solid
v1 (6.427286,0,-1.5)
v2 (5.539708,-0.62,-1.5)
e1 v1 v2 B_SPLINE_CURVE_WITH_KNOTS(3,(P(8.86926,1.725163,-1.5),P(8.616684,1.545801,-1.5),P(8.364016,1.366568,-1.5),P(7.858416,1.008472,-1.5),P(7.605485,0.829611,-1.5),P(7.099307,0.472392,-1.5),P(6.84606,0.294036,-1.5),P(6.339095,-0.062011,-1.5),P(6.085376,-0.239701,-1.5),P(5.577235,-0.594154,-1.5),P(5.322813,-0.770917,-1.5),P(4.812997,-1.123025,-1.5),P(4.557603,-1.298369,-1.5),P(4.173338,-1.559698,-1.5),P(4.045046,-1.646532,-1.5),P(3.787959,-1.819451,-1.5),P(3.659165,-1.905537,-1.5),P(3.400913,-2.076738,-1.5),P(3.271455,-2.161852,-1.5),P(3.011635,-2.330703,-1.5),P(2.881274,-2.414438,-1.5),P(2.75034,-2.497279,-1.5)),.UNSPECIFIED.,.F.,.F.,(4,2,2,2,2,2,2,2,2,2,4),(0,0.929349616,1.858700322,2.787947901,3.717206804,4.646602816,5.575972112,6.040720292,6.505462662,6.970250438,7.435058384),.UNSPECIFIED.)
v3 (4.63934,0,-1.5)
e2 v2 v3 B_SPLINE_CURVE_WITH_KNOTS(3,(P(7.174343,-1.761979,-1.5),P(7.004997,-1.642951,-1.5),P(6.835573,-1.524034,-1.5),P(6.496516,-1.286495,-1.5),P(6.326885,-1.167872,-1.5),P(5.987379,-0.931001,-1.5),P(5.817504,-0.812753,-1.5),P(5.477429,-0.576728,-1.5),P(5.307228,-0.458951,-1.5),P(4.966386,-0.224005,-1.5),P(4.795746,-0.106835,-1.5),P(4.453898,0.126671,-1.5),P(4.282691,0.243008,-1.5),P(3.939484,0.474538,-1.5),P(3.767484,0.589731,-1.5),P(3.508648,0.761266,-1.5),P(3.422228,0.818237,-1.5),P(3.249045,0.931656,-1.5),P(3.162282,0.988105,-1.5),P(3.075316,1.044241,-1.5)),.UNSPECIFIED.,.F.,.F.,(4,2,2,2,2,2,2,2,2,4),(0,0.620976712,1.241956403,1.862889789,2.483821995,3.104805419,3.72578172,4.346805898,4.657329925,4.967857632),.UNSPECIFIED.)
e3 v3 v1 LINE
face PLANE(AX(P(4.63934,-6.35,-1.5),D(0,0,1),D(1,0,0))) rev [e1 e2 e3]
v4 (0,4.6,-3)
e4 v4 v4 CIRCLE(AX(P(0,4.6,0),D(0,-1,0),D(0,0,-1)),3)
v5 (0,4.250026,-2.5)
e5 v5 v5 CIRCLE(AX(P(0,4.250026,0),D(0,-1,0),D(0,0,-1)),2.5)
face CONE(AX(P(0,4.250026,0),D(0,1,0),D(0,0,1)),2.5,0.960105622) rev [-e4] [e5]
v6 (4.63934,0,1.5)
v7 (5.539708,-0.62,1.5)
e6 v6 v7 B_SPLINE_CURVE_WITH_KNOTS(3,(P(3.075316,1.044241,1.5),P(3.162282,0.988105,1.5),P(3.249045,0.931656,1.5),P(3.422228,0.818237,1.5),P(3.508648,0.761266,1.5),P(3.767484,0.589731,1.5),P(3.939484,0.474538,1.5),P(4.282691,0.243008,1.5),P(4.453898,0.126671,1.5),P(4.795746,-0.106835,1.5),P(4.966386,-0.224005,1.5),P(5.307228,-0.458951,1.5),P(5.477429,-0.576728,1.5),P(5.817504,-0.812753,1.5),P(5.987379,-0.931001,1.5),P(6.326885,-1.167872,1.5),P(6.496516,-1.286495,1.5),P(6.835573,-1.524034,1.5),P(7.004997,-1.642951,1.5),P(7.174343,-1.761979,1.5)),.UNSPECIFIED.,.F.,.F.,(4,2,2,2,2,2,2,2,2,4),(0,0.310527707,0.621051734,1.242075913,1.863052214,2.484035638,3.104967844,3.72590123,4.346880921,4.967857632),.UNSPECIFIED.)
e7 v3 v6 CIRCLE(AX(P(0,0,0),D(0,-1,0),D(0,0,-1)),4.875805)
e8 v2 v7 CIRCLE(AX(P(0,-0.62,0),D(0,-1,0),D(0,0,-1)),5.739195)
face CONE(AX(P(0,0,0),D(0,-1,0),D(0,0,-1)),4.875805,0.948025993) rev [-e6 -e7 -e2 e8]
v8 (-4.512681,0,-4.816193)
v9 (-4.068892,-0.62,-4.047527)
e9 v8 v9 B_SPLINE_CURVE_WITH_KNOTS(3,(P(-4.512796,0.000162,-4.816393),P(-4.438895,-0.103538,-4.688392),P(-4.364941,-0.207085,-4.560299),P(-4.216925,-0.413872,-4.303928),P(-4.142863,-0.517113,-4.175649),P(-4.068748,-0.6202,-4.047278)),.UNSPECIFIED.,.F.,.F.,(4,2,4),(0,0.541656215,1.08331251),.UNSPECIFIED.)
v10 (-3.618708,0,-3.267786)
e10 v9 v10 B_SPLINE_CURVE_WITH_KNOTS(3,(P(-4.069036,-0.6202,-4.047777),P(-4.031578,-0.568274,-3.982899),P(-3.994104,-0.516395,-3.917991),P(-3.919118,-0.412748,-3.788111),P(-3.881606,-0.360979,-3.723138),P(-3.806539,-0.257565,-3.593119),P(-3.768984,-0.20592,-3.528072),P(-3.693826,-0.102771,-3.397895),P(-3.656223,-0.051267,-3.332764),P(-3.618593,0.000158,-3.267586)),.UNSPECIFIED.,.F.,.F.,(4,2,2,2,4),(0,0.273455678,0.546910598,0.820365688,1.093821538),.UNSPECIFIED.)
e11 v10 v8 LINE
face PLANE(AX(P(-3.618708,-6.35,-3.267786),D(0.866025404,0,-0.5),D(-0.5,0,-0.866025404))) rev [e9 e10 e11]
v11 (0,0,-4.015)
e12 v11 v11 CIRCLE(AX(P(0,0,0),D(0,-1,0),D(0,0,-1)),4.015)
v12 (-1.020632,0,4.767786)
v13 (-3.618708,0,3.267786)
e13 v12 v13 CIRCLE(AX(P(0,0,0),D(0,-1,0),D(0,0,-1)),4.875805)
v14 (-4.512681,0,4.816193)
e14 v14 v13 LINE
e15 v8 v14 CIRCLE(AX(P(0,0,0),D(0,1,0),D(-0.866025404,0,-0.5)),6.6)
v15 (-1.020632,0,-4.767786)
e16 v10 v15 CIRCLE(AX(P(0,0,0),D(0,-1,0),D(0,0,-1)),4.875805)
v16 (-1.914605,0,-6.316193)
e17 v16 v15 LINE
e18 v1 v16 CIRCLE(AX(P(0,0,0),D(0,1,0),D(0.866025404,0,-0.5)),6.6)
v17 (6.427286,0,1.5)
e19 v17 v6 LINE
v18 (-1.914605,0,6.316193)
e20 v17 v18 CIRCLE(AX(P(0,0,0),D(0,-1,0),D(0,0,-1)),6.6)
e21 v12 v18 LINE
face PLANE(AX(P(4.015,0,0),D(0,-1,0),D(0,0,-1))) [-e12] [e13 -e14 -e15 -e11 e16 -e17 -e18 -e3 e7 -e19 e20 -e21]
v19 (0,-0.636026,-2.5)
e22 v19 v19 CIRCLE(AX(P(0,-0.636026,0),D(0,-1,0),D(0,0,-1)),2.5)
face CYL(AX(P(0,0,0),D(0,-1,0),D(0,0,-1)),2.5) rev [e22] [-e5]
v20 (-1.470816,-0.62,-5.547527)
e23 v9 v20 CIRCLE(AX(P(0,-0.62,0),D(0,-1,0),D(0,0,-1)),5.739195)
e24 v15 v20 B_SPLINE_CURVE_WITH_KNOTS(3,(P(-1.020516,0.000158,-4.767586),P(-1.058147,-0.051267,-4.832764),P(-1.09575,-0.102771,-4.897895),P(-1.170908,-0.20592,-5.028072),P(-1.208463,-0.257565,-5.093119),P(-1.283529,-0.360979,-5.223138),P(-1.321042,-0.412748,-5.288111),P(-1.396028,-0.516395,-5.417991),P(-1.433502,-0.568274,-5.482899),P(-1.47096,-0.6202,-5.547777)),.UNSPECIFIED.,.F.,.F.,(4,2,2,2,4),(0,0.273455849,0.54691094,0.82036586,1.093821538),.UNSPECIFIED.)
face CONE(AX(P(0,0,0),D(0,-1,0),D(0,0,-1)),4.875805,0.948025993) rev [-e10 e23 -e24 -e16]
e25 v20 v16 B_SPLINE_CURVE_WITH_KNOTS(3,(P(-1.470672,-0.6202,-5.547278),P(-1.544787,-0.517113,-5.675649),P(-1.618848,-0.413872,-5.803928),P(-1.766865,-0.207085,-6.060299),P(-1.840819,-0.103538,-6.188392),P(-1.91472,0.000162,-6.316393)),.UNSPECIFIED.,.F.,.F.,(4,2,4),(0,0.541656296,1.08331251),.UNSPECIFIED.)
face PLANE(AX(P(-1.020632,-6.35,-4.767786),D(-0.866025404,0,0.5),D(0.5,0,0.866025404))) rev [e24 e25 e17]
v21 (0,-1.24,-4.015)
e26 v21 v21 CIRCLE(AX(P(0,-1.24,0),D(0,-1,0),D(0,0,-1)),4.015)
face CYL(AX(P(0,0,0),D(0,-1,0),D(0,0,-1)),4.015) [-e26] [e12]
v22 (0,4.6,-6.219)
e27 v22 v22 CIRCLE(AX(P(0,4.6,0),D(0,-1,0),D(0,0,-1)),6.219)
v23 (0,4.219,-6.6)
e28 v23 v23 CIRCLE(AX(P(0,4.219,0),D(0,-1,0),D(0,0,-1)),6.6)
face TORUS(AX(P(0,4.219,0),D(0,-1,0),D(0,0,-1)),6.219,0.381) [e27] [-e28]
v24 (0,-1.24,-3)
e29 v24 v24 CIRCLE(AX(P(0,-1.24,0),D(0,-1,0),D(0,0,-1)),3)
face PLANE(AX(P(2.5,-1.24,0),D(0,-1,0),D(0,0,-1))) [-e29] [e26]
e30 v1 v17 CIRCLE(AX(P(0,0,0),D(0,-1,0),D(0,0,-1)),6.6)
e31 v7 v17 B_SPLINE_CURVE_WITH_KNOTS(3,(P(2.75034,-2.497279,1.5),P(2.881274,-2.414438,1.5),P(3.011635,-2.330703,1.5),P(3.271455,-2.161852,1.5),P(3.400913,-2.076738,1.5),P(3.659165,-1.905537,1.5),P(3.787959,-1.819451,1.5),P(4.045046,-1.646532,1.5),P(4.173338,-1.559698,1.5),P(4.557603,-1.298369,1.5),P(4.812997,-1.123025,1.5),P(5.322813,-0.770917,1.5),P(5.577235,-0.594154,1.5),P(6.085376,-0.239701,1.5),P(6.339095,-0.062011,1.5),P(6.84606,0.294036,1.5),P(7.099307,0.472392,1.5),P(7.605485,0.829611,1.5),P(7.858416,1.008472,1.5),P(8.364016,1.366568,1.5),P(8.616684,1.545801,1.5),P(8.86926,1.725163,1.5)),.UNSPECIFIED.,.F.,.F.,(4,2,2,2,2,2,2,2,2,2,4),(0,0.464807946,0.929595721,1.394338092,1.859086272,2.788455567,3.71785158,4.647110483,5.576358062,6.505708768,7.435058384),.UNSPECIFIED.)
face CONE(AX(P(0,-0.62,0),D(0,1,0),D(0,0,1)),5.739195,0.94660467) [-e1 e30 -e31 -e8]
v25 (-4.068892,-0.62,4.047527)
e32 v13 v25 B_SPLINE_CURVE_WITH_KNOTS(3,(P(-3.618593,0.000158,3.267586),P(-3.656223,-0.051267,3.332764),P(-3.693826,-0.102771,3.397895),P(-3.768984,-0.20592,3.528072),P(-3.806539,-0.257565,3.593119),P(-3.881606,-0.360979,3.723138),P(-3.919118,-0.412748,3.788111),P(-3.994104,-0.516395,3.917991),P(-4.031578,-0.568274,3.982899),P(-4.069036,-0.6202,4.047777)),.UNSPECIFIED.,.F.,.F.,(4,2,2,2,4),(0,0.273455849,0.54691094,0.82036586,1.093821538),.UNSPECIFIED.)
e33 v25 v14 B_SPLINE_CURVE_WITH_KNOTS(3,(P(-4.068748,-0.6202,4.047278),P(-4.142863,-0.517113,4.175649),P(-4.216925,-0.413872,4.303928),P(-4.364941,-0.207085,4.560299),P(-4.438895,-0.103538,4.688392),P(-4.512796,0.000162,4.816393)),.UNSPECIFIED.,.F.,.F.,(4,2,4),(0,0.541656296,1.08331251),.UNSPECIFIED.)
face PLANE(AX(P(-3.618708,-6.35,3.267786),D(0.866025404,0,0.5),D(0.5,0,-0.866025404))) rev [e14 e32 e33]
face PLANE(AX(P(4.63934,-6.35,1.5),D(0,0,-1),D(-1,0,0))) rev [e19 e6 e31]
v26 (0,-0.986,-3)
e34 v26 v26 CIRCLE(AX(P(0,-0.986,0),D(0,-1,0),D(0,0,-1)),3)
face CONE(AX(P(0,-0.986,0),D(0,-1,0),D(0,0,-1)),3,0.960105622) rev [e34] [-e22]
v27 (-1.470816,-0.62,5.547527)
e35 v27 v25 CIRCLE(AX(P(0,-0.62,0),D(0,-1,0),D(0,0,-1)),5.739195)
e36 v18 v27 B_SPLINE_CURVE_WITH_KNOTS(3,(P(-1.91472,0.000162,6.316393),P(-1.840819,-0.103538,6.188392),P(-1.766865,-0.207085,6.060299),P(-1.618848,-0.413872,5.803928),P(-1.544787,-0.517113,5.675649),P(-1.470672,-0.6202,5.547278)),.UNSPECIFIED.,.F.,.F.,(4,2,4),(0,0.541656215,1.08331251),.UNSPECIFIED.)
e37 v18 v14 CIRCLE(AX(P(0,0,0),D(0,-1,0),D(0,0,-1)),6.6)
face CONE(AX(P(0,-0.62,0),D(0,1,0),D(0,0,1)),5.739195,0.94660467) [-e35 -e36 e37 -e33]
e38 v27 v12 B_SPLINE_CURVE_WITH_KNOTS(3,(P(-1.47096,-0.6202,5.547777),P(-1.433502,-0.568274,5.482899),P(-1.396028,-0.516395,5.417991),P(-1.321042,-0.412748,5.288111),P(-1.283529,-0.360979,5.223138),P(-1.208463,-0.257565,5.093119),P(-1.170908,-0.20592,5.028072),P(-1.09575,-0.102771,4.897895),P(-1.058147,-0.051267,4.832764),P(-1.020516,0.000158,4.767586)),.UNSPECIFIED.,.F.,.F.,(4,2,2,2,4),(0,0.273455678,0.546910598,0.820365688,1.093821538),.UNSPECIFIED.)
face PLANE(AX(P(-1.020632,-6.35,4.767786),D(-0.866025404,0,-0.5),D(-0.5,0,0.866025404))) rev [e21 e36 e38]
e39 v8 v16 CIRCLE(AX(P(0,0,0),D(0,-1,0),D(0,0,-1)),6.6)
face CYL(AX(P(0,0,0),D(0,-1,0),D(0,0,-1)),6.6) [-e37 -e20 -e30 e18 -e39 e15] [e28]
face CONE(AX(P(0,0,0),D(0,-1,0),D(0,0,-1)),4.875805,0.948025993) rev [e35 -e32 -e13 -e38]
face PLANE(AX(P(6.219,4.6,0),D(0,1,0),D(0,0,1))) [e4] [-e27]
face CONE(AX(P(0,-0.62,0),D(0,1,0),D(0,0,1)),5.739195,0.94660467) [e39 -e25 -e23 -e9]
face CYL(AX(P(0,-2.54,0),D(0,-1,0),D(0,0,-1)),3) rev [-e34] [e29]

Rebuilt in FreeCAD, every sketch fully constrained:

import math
import FreeCAD as App
import Part
import Sketcher

V = App.Vector
Q = App.Units.Quantity

doc = App.newDocument("Part")
body = doc.addObject("PartDesign::Body", "Body")

# Sketch on XY plane
sketch1 = body.newObject("Sketcher::SketchObject", "Sketch")
sketch1.AttachmentSupport = (doc.getObject("XY_Plane"), [""])
sketch1.MapMode = "FlatFace"
sketch1.addGeometry([
    Part.LineSegment(V(4.01, 0, 0), V(4.88, 0, 0)),  # 0
    Part.LineSegment(V(4.88, 0, 0), V(5.74, -0.62, 0)),  # 1
    Part.LineSegment(V(5.74, -0.62, 0), V(6.6, 0, 0)),  # 2
    Part.LineSegment(V(6.6, 0, 0), V(6.6, 4.22, 0)),  # 3
    Part.ArcOfCircle(Part.Circle(V(6.22, 4.22, 0), V(0, 0, 1), 0.38), math.radians(0), math.radians(90)),  # 4
    Part.LineSegment(V(6.22, 4.6, 0), V(2.5, 4.6, 0)),  # 5
    Part.LineSegment(V(2.5, 4.6, 0), V(2.5, -1.24, 0)),  # 6
    Part.LineSegment(V(2.5, -1.24, 0), V(4.01, -1.24, 0)),  # 7
    Part.LineSegment(V(4.01, -1.24, 0), V(4.01, 0, 0)),  # 8
], False)
sketch1.addConstraint([
    Sketcher.Constraint("Coincident", 0, 2, 1, 1),
    Sketcher.Constraint("Coincident", 1, 2, 2, 1),
    Sketcher.Constraint("Coincident", 2, 2, 3, 1),
    Sketcher.Constraint("Tangent", 3, 2, 4, 1),
    Sketcher.Constraint("Tangent", 4, 2, 5, 1),
    Sketcher.Constraint("Coincident", 5, 2, 6, 1),
    Sketcher.Constraint("Coincident", 6, 2, 7, 1),
    Sketcher.Constraint("Coincident", 7, 2, 8, 1),
    Sketcher.Constraint("Coincident", 8, 2, 0, 1),
    Sketcher.Constraint("Horizontal", 0),
    Sketcher.Constraint("Vertical", 3),
    Sketcher.Constraint("Horizontal", 5),
    Sketcher.Constraint("Vertical", 6),
    Sketcher.Constraint("Horizontal", 7),
    Sketcher.Constraint("Vertical", 8),
    Sketcher.Constraint("PointOnObject", 0, 2, -1),
    Sketcher.Constraint("PointOnObject", 2, 2, -1),
    Sketcher.Constraint("Radius", 4, Q("0.015 in")),
    Sketcher.Constraint("DistanceX", 5, 2, 5, 1, 3.719),
    Sketcher.Constraint("DistanceX", 7, 1, 7, 2, 1.515),
    Sketcher.Constraint("DistanceY", 3, 1, 3, 2, 4.219),
    Sketcher.Constraint("DistanceY", 6, 2, 6, 1, 5.84),
    Sketcher.Constraint("DistanceX", -1, 1, 4, 3, 6.219),
    Sketcher.Constraint("DistanceY", 1, 2, -1, 1, 0.62),
    Sketcher.Constraint("Distance", 1, 1.06294),
    Sketcher.Constraint("Distance", 2, 1.060842),
])
revolution = body.newObject("PartDesign::Revolution", "Revolution")
revolution.Profile = sketch1
revolution.ReferenceAxis = (sketch1, ["V_Axis"])
revolution.Angle = 360

# Sketch on XY plane
sketch2 = body.newObject("Sketcher::SketchObject", "Sketch001")
sketch2.AttachmentSupport = (doc.getObject("XY_Plane"), [""])
sketch2.MapMode = "FlatFace"
sketch2.addGeometry([
    Part.LineSegment(V(3, -1.49, 0), V(3, -0.99, 0)),  # 0
    Part.LineSegment(V(3, -0.99, 0), V(2.5, -0.64, 0)),  # 1
    Part.LineSegment(V(2.5, -0.64, 0), V(2.5, -1.49, 0)),  # 2
    Part.LineSegment(V(2.5, -1.49, 0), V(3, -1.49, 0)),  # 3
    Part.LineSegment(V(2.5, 4.25, 0), V(3, 4.6, 0)),  # 4
    Part.LineSegment(V(3, 4.6, 0), V(2.5, 4.6, 0)),  # 5
    Part.LineSegment(V(2.5, 4.6, 0), V(2.5, 4.25, 0)),  # 6
], False)
sketch2.addConstraint([
    Sketcher.Constraint("Coincident", 0, 2, 1, 1),
    Sketcher.Constraint("Coincident", 1, 2, 2, 1),
    Sketcher.Constraint("Coincident", 2, 2, 3, 1),
    Sketcher.Constraint("Coincident", 3, 2, 0, 1),
    Sketcher.Constraint("Coincident", 4, 2, 5, 1),
    Sketcher.Constraint("Coincident", 5, 2, 6, 1),
    Sketcher.Constraint("Coincident", 6, 2, 4, 1),
    Sketcher.Constraint("Vertical", 0),
    Sketcher.Constraint("Vertical", 2),
    Sketcher.Constraint("Horizontal", 3),
    Sketcher.Constraint("Horizontal", 5),
    Sketcher.Constraint("Vertical", 6),
    Sketcher.Constraint("Vertical", 3, 2, 4, 2),
    Sketcher.Constraint("Vertical", 2, 2, 5, 2),
    Sketcher.Constraint("Equal", 1, 4),
    Sketcher.Constraint("DistanceY", 0, 1, 0, 2, Q("0.02 in")),
    Sketcher.Constraint("Angle", 1, Q("145.01 deg")),
    Sketcher.Constraint("DistanceX", 3, 1, 3, 2, 0.5),
    Sketcher.Constraint("DistanceX", -1, 1, 0, 2, 3.0),
    Sketcher.Constraint("DistanceY", 0, 2, -1, 1, 0.986),
    Sketcher.Constraint("DistanceY", -1, 1, 4, 2, 4.6),
])
groove = body.newObject("PartDesign::Groove", "Groove")
groove.Profile = sketch2
groove.ReferenceAxis = (sketch2, ["V_Axis"])
groove.Angle = 360

# Sketch on XZ plane
sketch3 = body.newObject("Sketcher::SketchObject", "Sketch002")
sketch3.AttachmentSupport = (doc.getObject("XZ_Plane"), [""])
sketch3.MapMode = "FlatFace"
sketch3.addGeometry([
    Part.LineSegment(V(-1, 4.8, 0), V(-1.9, 6.3, 0)),
    Part.ArcOfCircle(Part.Circle(V(0, 0, 0), V(0, 0, 1), 6.6), math.radians(13), math.radians(107)),
    Part.LineSegment(V(6.4, 1.5, 0), V(4.6, 1.5, 0)),
    Part.ArcOfCircle(Part.Circle(V(0, 0, 0), V(0, 0, 1), 4.9), math.radians(18), math.radians(102)),
], False)
sketch3.addConstraint([
    Sketcher.Constraint("Coincident", 0, 2, 1, 2),
    Sketcher.Constraint("Coincident", 1, 1, 2, 1),
    Sketcher.Constraint("Coincident", 2, 2, 3, 1),
    Sketcher.Constraint("Coincident", 3, 2, 0, 1),
    Sketcher.Constraint("Horizontal", 2),
    Sketcher.Constraint("Coincident", 1, 3, -1, 1),
    Sketcher.Constraint("Coincident", 3, 3, -1, 1),
    Sketcher.Constraint("Angle", 0, Q("120 deg")),
    Sketcher.Constraint("Radius", 1, 6.6),
    Sketcher.Constraint("Radius", 3, 4.875805),
    Sketcher.Constraint("DistanceY", -1, 1, 1, 1, 1.5),
    Sketcher.Constraint("DistanceX", 3, 2, -1, 1, 1.020632),
])
pocket1 = body.newObject("PartDesign::Pocket", "Pocket")
pocket1.Profile = sketch3
pocket1.Length = Q("0.25 in")
pocket1.Reversed = True
doc.recompute()

polarpattern = body.newObject("PartDesign::PolarPattern", "PolarPattern")
polarpattern.Originals = [pocket1]
polarpattern.Axis = (doc.getObject("Y_Axis"), [""])
polarpattern.Angle = 360
polarpattern.Occurrences = 3
body.Tip = polarpattern

doc.recompute()
